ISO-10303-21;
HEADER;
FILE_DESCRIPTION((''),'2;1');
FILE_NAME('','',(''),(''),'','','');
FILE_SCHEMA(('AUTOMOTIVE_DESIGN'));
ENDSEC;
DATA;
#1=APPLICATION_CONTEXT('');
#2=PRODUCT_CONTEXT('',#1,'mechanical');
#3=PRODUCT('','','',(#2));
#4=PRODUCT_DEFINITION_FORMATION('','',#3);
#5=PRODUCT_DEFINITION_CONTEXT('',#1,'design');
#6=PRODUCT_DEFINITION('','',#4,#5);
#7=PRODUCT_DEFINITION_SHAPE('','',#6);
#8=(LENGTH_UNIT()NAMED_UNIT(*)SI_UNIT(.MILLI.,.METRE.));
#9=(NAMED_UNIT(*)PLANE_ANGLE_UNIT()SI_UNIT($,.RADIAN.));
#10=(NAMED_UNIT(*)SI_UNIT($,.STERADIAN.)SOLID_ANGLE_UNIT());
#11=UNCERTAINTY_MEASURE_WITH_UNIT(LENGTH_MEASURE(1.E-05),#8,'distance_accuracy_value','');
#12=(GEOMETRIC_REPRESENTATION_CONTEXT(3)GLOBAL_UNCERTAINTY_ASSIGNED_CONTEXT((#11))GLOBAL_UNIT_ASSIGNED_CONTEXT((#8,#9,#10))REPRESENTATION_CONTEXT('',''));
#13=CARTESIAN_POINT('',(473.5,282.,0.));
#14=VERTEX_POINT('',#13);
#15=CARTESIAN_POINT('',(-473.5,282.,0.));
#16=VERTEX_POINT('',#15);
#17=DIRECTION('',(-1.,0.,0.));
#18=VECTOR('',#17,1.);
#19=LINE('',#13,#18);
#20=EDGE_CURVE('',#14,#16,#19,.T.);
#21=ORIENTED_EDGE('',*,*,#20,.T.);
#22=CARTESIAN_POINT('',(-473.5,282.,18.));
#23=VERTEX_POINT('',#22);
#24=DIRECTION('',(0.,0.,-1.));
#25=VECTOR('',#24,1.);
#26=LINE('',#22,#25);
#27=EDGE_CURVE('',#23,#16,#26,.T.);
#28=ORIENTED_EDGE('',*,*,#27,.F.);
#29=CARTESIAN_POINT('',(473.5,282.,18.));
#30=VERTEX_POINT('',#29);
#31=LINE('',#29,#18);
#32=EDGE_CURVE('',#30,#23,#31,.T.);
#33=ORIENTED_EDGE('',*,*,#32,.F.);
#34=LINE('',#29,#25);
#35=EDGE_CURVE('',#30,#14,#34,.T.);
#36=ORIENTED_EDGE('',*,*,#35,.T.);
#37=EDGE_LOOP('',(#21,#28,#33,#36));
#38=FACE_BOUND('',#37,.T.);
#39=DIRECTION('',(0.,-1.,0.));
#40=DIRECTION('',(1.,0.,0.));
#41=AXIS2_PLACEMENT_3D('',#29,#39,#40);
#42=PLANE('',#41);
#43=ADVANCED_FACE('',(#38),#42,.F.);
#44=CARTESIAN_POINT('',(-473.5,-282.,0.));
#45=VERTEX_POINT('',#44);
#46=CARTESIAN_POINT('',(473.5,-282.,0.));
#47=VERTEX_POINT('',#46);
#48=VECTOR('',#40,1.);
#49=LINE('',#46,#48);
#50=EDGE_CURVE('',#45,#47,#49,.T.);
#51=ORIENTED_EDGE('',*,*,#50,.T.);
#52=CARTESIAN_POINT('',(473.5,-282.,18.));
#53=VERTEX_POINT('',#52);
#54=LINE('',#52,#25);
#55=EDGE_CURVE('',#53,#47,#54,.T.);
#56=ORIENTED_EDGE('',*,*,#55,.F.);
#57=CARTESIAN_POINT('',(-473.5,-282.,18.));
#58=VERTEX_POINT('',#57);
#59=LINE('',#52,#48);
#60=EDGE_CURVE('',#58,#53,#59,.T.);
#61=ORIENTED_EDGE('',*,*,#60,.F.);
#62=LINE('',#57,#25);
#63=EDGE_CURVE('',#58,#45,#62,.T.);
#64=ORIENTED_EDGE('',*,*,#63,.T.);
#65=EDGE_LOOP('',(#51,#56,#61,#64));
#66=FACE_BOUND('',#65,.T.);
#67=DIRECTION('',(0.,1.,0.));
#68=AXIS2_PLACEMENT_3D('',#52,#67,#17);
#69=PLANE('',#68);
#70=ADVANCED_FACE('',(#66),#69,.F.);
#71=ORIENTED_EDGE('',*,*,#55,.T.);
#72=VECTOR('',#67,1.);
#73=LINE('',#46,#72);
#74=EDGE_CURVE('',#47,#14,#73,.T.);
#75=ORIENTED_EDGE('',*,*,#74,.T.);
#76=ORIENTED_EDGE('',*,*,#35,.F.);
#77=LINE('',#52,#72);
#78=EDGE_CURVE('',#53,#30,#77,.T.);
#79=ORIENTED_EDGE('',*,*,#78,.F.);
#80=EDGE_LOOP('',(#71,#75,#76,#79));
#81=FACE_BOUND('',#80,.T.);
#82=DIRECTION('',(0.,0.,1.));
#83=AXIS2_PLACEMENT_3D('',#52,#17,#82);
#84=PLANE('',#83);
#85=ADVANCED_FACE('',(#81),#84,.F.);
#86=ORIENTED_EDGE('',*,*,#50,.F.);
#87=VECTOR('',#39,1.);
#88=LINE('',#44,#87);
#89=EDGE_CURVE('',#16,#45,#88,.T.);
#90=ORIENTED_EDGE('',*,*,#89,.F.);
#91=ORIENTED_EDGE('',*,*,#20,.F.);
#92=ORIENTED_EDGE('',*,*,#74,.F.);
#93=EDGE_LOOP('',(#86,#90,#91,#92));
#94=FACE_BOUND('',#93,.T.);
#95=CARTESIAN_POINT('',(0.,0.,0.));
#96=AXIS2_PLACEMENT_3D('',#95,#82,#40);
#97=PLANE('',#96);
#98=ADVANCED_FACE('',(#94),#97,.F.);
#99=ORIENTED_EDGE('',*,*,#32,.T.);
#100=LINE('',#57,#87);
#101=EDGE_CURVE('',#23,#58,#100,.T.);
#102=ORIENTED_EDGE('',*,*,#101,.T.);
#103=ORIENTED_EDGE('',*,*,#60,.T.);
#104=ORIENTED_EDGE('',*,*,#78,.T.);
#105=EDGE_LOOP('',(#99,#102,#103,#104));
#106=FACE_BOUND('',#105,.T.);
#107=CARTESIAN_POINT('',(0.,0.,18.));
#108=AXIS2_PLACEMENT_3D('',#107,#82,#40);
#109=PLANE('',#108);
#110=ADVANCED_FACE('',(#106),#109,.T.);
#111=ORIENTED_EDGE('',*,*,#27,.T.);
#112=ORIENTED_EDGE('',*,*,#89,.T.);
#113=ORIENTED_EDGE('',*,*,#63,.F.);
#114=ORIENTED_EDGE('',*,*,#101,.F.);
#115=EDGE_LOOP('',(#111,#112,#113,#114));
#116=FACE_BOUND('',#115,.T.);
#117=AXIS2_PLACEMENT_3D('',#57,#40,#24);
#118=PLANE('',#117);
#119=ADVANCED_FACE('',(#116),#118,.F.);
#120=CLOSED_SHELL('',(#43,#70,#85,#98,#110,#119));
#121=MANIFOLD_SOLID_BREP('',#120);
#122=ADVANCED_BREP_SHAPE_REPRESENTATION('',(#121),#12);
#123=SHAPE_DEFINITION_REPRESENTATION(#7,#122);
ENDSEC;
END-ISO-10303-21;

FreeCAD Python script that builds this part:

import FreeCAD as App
import Part
import Sketcher
Q = App.Units.Quantity

doc = App.newDocument("Part")
body = doc.addObject("PartDesign::Body", "Body")

sketch1 = body.newObject("Sketcher::SketchObject", "Sketch")
sketch1.AttachmentSupport = (doc.getObject("XY_Plane"), [""])
sketch1.MapMode = "FlatFace"
sketch1.addGeometry([
    Part.LineSegment(App.Vector(-473.5, 282, 0), App.Vector(-473.5, -282, 0)),
    Part.LineSegment(App.Vector(-473.5, -282, 0), App.Vector(473.5, -282, 0)),
    Part.LineSegment(App.Vector(473.5, -282, 0), App.Vector(473.5, 282, 0)),
    Part.LineSegment(App.Vector(473.5, 282, 0), App.Vector(-473.5, 282, 0)),
], False)
sketch1.addConstraint([
    Sketcher.Constraint("Coincident", 0, 2, 1, 1),
    Sketcher.Constraint("Coincident", 1, 2, 2, 1),
    Sketcher.Constraint("Coincident", 2, 2, 3, 1),
    Sketcher.Constraint("Coincident", 3, 2, 0, 1),
    Sketcher.Constraint("Vertical", 0),
    Sketcher.Constraint("Horizontal", 1),
    Sketcher.Constraint("Vertical", 2),
    Sketcher.Constraint("Horizontal", 3),
    Sketcher.Constraint("Symmetric", 0, 2, 2, 2, -1, 1),
    Sketcher.Constraint("DistanceX", 1, 1, 1, 2, Q("947 mm")),
    Sketcher.Constraint("DistanceY", 0, 2, 0, 1, Q("564 mm")),
])
pad1 = body.newObject("PartDesign::Pad", "Pad")
pad1.Profile = sketch1
pad1.Length = 18

doc.recompute()
